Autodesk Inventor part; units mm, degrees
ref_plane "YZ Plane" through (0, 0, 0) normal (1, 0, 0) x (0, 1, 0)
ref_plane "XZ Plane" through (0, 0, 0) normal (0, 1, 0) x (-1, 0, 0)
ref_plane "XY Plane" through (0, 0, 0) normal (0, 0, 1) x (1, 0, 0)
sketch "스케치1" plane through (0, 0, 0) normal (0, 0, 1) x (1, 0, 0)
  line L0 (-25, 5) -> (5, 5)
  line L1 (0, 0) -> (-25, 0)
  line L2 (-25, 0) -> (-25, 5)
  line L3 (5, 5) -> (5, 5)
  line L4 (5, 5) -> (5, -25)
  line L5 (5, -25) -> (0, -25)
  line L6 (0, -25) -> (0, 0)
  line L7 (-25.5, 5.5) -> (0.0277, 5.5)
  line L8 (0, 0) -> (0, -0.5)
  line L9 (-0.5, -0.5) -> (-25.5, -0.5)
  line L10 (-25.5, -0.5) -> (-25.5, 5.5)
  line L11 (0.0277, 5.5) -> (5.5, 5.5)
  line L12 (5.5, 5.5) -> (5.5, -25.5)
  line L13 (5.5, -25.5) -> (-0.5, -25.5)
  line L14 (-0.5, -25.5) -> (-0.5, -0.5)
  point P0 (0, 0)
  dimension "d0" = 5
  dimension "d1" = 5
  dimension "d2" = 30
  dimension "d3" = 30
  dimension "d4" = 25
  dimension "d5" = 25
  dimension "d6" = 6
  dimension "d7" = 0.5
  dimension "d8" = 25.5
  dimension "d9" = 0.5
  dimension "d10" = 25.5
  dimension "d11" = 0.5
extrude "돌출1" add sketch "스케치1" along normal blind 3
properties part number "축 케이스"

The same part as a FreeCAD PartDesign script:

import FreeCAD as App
import Part
import Sketcher

V = App.Vector

doc = App.newDocument("Part")
body = doc.addObject("PartDesign::Body", "Body")

sketch1 = body.newObject("Sketcher::SketchObject", "Sketch")
sketch1.AttachmentSupport = (doc.getObject("XY_Plane"), [""])
sketch1.MapMode = "FlatFace"
sketch1.addGeometry([
    Part.LineSegment(V(6, 6, 0), V(-26, 6, 0)),
    Part.LineSegment(V(-26, 6, 0), V(-26, 0, 0)),
    Part.LineSegment(V(-26, 0, 0), V(0, 0, 0)),
    Part.LineSegment(V(0, 0, 0), V(0, -26, 0)),
    Part.LineSegment(V(0, -26, 0), V(6, -26, 0)),
    Part.LineSegment(V(6, -26, 0), V(6, 6, 0)),
    Part.LineSegment(V(-25, 0, 0), V(-25, 5, 0)),
    Part.LineSegment(V(-25, 5, 0), V(5, 5, 0)),
    Part.LineSegment(V(5, 5, 0), V(5, -25, 0)),
    Part.LineSegment(V(5, -25, 0), V(0, -25, 0)),
    Part.LineSegment(V(0, -25, 0), V(0, 0, 0)),
    Part.LineSegment(V(0, 0, 0), V(-25, 0, 0)),
], False)
sketch1.addConstraint([
    Sketcher.Constraint("Coincident", 0, 2, 1, 1),
    Sketcher.Constraint("Coincident", 1, 2, 2, 1),
    Sketcher.Constraint("Coincident", 2, 2, 3, 1),
    Sketcher.Constraint("Coincident", 3, 2, 4, 1),
    Sketcher.Constraint("Coincident", 4, 2, 5, 1),
    Sketcher.Constraint("Coincident", 5, 2, 0, 1),
    Sketcher.Constraint("Coincident", 6, 2, 7, 1),
    Sketcher.Constraint("Coincident", 7, 2, 8, 1),
    Sketcher.Constraint("Coincident", 8, 2, 9, 1),
    Sketcher.Constraint("Coincident", 9, 2, 10, 1),
    Sketcher.Constraint("Coincident", 10, 2, 11, 1),
    Sketcher.Constraint("Coincident", 11, 2, 6, 1),
    Sketcher.Constraint("Horizontal", 0),
    Sketcher.Constraint("Vertical", 1),
    Sketcher.Constraint("Horizontal", 2),
    Sketcher.Constraint("Vertical", 3),
    Sketcher.Constraint("Horizontal", 4),
    Sketcher.Constraint("Vertical", 5),
    Sketcher.Constraint("Vertical", 6),
    Sketcher.Constraint("Horizontal", 7),
    Sketcher.Constraint("Vertical", 8),
    Sketcher.Constraint("Horizontal", 9),
    Sketcher.Constraint("Vertical", 10),
    Sketcher.Constraint("Horizontal", 11),
    Sketcher.Constraint("Coincident", 10, 2, -1, 1),
    Sketcher.Constraint("Equal", 2, 11),
    Sketcher.Constraint("Equal", 4, 1),
    Sketcher.Constraint("Equal", 11, 3),
    Sketcher.Constraint("Equal", 9, 6),
    Sketcher.Constraint("Equal", 7, 8),
    Sketcher.Constraint("DistanceX", 2, 1, 2, 2, 25.0),
    Sketcher.Constraint("DistanceX", 4, 1, 4, 2, 6.0),
    Sketcher.Constraint("DistanceX", 7, 1, 7, 2, 30.0),
    Sketcher.Constraint("DistanceX", 0, 2, -1, 1, 25.5),
    Sketcher.Constraint("DistanceY", 1, 2, -1, 1, 0.5),
])
pad1 = body.newObject("PartDesign::Pad", "Pad")
pad1.Profile = sketch1
pad1.Length = 3

doc.recompute()
